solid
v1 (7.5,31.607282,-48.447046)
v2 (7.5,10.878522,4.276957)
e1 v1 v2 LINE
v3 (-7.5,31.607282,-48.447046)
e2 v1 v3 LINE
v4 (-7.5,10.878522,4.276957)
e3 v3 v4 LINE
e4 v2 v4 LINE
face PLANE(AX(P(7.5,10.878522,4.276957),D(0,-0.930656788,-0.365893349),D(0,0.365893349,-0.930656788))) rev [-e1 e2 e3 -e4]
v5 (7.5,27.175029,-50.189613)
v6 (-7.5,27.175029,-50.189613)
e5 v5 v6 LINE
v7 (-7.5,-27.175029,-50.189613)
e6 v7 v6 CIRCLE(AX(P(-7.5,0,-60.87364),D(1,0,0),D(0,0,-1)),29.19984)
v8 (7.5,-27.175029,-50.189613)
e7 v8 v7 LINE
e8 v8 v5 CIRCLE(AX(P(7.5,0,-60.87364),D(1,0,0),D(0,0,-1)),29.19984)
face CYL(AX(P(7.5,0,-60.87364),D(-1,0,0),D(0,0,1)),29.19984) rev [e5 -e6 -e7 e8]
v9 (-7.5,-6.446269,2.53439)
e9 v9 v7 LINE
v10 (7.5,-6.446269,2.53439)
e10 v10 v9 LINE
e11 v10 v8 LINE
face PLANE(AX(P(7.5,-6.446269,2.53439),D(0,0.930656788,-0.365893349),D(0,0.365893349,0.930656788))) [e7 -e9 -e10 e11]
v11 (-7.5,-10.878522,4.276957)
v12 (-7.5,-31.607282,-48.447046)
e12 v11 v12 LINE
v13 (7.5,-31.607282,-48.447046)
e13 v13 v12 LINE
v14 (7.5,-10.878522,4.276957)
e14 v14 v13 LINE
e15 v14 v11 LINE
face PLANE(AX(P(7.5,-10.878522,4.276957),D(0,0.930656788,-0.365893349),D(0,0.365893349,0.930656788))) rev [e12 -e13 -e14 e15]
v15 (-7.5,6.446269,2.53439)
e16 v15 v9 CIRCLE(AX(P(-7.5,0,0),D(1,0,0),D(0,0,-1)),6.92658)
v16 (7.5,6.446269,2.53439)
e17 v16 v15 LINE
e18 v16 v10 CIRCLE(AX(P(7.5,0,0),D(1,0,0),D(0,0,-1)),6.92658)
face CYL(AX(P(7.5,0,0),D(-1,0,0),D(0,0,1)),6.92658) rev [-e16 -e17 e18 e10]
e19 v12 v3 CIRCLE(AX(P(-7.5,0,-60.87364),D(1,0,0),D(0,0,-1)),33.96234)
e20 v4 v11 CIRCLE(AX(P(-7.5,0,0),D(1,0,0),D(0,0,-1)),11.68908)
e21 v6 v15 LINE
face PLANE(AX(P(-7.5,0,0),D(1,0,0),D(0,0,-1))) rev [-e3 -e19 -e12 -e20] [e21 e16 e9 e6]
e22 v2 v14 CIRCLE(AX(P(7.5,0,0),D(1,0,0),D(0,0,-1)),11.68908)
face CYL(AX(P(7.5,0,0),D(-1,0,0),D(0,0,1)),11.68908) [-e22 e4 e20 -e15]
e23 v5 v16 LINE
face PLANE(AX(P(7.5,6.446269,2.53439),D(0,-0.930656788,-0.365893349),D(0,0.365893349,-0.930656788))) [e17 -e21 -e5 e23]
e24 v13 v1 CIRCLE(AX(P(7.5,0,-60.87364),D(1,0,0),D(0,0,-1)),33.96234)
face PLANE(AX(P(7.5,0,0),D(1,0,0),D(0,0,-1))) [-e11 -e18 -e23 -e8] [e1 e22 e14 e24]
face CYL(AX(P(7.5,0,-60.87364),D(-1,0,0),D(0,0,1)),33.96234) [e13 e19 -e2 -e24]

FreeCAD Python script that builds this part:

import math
import FreeCAD as App
import Part
import Sketcher
from FreeCAD import Vector
Q = App.Units.Quantity

doc = App.newDocument("Part")
body = doc.addObject("PartDesign::Body", "Body")

sketch1 = body.newObject("Sketcher::SketchObject", "Sketch")
sketch1.AttachmentSupport = (doc.getObject("YZ_Plane"), [""])
sketch1.MapMode = "FlatFace"
sketch1.addGeometry([
    Part.LineSegment(Vector(31.607282, -48.447046, 0), Vector(10.878522, 4.276957, 0)),
    Part.ArcOfCircle(Part.Circle(Vector(0, 0, 0), Vector(0, 0, 1), 11.68908), math.radians(21.462571), math.radians(158.537429)),
    Part.LineSegment(Vector(-10.878522, 4.276957, 0), Vector(-31.607282, -48.447046, 0)),
    Part.ArcOfCircle(Part.Circle(Vector(0, -60.87364, 0), Vector(0, 0, 1), 33.96234), math.radians(158.537429), math.radians(381.462571)),
    Part.LineSegment(Vector(6.446269, 2.53439, 0), Vector(27.175029, -50.189613, 0)),
    Part.ArcOfCircle(Part.Circle(Vector(0, -60.87364, 0), Vector(0, 0, 1), 29.19984), math.radians(158.537429), math.radians(381.462571)),
    Part.LineSegment(Vector(-27.175029, -50.189613, 0), Vector(-6.446269, 2.53439, 0)),
    Part.ArcOfCircle(Part.Circle(Vector(0, 0, 0), Vector(0, 0, 1), 6.92658), math.radians(21.462571), math.radians(158.537429)),
], False)
sketch1.addConstraint([
    Sketcher.Constraint("Tangent", 0, 2, 1, 1),
    Sketcher.Constraint("Tangent", 1, 2, 2, 1),
    Sketcher.Constraint("Tangent", 2, 2, 3, 1),
    Sketcher.Constraint("Tangent", 3, 2, 0, 1),
    Sketcher.Constraint("Tangent", 4, 2, 5, 2),
    Sketcher.Constraint("Tangent", 5, 1, 6, 1),
    Sketcher.Constraint("Tangent", 6, 2, 7, 2),
    Sketcher.Constraint("Tangent", 7, 1, 4, 1),
    Sketcher.Constraint("Coincident", 1, 3, -1, 1),
    Sketcher.Constraint("Coincident", 7, 3, -1, 1),
    Sketcher.Constraint("Coincident", 5, 3, 3, 3),
    Sketcher.Constraint("PointOnObject", 3, 3, -2),
    Sketcher.Constraint("Parallel", 0, 4),
    Sketcher.Constraint("Radius", 1, Q("11.68908 mm")),
    Sketcher.Constraint("Radius", 3, Q("33.96234 mm")),
    Sketcher.Constraint("Radius", 5, Q("29.19984 mm")),
    Sketcher.Constraint("DistanceY", 3, 3, -1, 1, Q("60.87364 mm")),
])
pad1 = body.newObject("PartDesign::Pad", "Pad")
pad1.Profile = sketch1
pad1.Length = 15
pad1.Midplane = True

doc.recompute()
